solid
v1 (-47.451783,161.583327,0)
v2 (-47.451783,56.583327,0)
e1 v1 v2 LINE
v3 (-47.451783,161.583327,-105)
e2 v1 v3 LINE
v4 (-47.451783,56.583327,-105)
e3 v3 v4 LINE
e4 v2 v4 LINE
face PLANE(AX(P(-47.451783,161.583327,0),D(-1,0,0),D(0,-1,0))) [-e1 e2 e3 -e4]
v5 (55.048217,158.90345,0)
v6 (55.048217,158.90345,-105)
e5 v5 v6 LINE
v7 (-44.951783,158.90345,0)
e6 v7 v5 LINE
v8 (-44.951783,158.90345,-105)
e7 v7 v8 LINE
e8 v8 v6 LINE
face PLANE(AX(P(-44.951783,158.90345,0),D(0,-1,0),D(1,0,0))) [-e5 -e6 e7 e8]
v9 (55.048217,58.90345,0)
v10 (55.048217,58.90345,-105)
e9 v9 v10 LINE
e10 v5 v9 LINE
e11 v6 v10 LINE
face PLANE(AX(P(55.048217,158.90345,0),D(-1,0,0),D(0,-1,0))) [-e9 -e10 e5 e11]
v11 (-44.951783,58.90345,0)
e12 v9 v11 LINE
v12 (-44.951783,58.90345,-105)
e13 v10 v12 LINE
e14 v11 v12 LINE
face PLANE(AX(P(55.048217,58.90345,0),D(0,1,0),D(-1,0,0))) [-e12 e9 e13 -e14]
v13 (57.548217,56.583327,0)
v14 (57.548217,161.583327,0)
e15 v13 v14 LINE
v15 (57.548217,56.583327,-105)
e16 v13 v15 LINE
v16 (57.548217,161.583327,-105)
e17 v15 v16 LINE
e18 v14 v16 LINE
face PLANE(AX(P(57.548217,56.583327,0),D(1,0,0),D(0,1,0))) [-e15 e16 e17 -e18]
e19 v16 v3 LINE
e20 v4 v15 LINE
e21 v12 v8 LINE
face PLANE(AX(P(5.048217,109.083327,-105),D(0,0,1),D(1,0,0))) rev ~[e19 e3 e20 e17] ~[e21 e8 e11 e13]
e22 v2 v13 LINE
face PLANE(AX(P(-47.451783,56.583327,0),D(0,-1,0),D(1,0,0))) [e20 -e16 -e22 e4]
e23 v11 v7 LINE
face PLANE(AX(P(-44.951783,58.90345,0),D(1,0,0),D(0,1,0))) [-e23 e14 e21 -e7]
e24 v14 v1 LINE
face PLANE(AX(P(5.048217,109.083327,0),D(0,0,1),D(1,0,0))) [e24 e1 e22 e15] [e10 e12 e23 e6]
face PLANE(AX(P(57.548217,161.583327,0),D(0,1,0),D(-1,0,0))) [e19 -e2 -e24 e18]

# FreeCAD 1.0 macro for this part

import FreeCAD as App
import Part
import Sketcher
from FreeCAD import Vector

doc = App.newDocument("Part")
params = doc.addObject("Spreadsheet::Sheet", "Params")
for row, (alias, value) in enumerate([
    ("sketch1_width", "105 mm"),
    ("sketch1_width2", "100 mm"),
    ("pad1_length", "105 mm"),
], start=1):
    params.set(f"A{row}", alias)
    params.set(f"B{row}", "=" + value)
    params.setAlias(f"B{row}", alias)

body = doc.addObject("PartDesign::Body", "Body")

sketch1 = body.newObject("Sketcher::SketchObject", "Sketch")
sketch1.AttachmentSupport = (doc.getObject("XY_Plane"), [""])
sketch1.MapMode = "FlatFace"
sketch1.addGeometry([
    Part.LineSegment(Vector(-47, 162, 0), Vector(-47, 57, 0)),
    Part.LineSegment(Vector(-47, 57, 0), Vector(58, 57, 0)),
    Part.LineSegment(Vector(58, 57, 0), Vector(58, 162, 0)),
    Part.LineSegment(Vector(58, 162, 0), Vector(-47, 162, 0)),
    Part.LineSegment(Vector(-45, 59, 0), Vector(-45, 159, 0)),
    Part.LineSegment(Vector(-45, 159, 0), Vector(55, 159, 0)),
    Part.LineSegment(Vector(55, 159, 0), Vector(55, 59, 0)),
    Part.LineSegment(Vector(55, 59, 0), Vector(-45, 59, 0)),
], False)
sketch1.addConstraint([
    Sketcher.Constraint("Coincident", 0, 2, 1, 1),
    Sketcher.Constraint("Coincident", 1, 2, 2, 1),
    Sketcher.Constraint("Coincident", 2, 2, 3, 1),
    Sketcher.Constraint("Coincident", 3, 2, 0, 1),
    Sketcher.Constraint("Coincident", 4, 2, 5, 1),
    Sketcher.Constraint("Coincident", 5, 2, 6, 1),
    Sketcher.Constraint("Coincident", 6, 2, 7, 1),
    Sketcher.Constraint("Coincident", 7, 2, 4, 1),
    Sketcher.Constraint("Vertical", 0),
    Sketcher.Constraint("Horizontal", 1),
    Sketcher.Constraint("Vertical", 2),
    Sketcher.Constraint("Horizontal", 3),
    Sketcher.Constraint("Vertical", 4),
    Sketcher.Constraint("Horizontal", 5),
    Sketcher.Constraint("Vertical", 6),
    Sketcher.Constraint("Horizontal", 7),
    Sketcher.Constraint("Equal", 3, 0),
    Sketcher.Constraint("Equal", 7, 4),
    Sketcher.Constraint("DistanceX", 1, 1, 1, 2, 105.0),
    Sketcher.Constraint("DistanceX", 5, 1, 5, 2, 100.0),
    Sketcher.Constraint("DistanceX", 3, 2, 4, 2, 2.5),
    Sketcher.Constraint("DistanceY", -1, 1, 4, 2, 158.90345),
    Sketcher.Constraint("DistanceX", 0, 2, -1, 1, 47.451783),
    Sketcher.Constraint("DistanceY", -1, 1, 0, 2, 56.583327),
])
sketch1.setExpression("Constraints[18]", "Params.sketch1_width")
sketch1.setExpression("Constraints[19]", "Params.sketch1_width2")
pad1 = body.newObject("PartDesign::Pad", "Pad")
pad1.Profile = sketch1
pad1.setExpression("Length", "Params.pad1_length")
pad1.Reversed = True

doc.recompute()
